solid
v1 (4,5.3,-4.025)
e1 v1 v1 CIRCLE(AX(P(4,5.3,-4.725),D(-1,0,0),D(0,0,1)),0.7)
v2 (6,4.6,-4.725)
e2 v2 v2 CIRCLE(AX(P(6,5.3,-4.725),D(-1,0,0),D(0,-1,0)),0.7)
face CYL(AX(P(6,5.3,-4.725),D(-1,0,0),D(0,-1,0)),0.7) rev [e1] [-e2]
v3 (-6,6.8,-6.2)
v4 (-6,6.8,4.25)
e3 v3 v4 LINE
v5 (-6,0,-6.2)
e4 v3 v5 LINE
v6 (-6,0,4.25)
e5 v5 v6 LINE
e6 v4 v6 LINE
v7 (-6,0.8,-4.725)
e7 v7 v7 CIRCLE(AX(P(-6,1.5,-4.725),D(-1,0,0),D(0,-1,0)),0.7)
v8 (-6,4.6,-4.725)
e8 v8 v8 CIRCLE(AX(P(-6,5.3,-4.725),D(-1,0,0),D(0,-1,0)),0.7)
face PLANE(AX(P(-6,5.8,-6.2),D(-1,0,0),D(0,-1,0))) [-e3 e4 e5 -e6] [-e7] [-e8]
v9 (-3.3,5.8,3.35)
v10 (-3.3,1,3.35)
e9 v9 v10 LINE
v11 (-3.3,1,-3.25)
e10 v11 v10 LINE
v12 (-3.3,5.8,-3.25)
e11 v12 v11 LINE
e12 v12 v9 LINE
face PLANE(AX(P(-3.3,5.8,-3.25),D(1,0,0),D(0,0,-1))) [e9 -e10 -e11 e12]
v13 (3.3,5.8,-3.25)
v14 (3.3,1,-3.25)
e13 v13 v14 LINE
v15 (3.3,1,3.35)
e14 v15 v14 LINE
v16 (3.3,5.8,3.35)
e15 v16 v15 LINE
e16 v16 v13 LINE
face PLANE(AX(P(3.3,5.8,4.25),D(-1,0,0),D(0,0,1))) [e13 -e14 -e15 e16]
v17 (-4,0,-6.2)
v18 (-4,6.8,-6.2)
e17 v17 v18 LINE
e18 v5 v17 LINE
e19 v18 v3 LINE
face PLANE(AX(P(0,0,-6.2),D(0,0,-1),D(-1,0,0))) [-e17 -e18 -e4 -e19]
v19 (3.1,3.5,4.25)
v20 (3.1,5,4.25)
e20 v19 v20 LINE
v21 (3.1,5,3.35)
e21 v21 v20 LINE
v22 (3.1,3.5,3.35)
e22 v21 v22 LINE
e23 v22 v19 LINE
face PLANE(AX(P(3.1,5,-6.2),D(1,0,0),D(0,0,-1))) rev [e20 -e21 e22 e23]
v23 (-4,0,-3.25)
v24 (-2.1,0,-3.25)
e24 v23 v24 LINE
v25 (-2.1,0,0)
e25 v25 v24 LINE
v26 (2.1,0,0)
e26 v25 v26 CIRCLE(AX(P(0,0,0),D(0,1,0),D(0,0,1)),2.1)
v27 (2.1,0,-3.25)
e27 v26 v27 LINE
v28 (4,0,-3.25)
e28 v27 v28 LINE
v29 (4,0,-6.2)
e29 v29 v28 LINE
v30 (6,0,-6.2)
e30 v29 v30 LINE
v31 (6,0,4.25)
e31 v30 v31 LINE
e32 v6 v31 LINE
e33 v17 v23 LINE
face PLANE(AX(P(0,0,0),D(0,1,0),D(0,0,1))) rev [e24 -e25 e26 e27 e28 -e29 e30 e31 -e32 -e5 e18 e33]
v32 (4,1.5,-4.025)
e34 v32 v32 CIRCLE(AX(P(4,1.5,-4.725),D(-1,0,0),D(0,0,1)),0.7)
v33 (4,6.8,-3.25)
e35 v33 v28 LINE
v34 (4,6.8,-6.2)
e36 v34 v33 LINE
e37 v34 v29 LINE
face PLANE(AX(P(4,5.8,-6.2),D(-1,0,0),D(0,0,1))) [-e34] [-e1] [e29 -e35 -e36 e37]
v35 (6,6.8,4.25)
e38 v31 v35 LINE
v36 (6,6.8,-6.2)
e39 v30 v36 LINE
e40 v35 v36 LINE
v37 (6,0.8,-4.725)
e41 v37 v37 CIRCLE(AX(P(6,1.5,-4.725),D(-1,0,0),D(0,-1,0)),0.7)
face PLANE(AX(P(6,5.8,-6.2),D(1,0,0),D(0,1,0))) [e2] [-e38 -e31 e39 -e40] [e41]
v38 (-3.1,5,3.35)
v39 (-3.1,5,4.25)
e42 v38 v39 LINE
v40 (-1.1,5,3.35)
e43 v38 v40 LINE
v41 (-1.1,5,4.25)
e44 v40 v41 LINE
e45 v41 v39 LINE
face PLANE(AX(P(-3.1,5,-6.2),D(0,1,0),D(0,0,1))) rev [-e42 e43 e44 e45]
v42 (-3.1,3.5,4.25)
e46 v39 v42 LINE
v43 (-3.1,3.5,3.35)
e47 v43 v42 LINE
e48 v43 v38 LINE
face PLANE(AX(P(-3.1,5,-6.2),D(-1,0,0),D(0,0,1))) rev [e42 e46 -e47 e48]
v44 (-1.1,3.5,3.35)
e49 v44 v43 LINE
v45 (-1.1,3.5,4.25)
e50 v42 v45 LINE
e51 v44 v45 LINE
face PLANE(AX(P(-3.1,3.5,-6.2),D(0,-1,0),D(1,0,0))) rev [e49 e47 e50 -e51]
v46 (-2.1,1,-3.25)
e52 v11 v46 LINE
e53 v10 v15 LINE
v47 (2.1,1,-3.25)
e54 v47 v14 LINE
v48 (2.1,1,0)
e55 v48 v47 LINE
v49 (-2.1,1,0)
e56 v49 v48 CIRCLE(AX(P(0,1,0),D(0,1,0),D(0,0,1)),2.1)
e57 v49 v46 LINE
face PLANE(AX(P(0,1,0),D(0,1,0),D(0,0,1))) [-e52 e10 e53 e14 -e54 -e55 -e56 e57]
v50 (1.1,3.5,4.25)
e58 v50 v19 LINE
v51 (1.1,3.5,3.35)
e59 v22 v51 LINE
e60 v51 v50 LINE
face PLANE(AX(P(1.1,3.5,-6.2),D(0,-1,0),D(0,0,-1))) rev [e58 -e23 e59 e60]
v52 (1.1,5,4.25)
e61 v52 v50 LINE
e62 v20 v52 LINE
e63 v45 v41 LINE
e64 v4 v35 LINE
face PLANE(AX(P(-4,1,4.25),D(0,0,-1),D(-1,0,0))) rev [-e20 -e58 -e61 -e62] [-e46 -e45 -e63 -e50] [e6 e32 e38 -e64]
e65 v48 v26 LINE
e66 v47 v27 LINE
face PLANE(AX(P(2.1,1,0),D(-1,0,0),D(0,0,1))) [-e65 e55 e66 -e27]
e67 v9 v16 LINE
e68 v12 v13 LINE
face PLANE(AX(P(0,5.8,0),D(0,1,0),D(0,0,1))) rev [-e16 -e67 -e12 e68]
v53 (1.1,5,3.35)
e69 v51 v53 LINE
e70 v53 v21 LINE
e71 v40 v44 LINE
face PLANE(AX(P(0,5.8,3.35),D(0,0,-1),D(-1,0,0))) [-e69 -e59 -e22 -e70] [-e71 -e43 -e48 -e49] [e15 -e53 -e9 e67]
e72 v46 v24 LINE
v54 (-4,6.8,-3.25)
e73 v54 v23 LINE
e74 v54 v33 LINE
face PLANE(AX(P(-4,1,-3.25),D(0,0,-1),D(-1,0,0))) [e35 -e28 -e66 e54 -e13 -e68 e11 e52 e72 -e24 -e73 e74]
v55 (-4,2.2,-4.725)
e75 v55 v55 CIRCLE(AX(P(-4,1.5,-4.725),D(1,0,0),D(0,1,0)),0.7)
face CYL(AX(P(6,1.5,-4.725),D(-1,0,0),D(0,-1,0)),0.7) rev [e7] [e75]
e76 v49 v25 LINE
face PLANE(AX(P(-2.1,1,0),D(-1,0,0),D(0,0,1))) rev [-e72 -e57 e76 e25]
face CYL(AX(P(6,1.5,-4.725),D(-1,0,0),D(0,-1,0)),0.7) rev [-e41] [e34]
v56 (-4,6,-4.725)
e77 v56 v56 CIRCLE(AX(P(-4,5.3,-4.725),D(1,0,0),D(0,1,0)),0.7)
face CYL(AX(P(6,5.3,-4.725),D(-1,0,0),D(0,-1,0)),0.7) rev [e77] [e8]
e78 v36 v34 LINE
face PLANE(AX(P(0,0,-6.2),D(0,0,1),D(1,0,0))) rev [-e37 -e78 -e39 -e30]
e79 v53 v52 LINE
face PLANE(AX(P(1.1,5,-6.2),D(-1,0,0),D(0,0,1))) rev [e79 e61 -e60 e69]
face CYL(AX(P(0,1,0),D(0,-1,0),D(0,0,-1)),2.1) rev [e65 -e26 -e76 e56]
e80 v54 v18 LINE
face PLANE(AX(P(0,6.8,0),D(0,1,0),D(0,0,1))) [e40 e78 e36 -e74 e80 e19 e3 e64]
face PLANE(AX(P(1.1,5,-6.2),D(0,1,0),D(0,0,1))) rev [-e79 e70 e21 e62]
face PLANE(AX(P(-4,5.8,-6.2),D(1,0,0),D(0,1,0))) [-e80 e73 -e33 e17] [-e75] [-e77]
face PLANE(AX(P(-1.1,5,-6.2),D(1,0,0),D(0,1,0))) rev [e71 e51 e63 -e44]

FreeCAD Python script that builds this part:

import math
import FreeCAD as App
import Part
import Sketcher
from FreeCAD import Vector
Q = App.Units.Quantity

doc = App.newDocument("Part")
body = doc.addObject("PartDesign::Body", "Body")

sketch1 = body.newObject("Sketcher::SketchObject", "Sketch")
sketch1.AttachmentSupport = (doc.getObject("XZ_Plane"), [""])
sketch1.MapMode = "FlatFace"
sketch1.addGeometry([
    Part.LineSegment(Vector(-4, -3.2, 0), Vector(-4, 4.2, 0)),
    Part.LineSegment(Vector(-4, 4.2, 0), Vector(4, 4.2, 0)),
    Part.LineSegment(Vector(4, 4.2, 0), Vector(4, -3.2, 0)),
    Part.LineSegment(Vector(4, -3.2, 0), Vector(2.1, -3.2, 0)),
    Part.LineSegment(Vector(2.1, -3.2, 0), Vector(2.1, 0, 0)),
    Part.ArcOfCircle(Part.Circle(Vector(0, 0, 0), Vector(0, 0, 1), 2.1), math.radians(0), math.radians(180)),
    Part.LineSegment(Vector(-2.1, 0, 0), Vector(-2.1, -3.2, 0)),
    Part.LineSegment(Vector(-2.1, -3.2, 0), Vector(-4, -3.2, 0)),
], False)
sketch1.addConstraint([
    Sketcher.Constraint("Coincident", 0, 2, 1, 1),
    Sketcher.Constraint("Coincident", 1, 2, 2, 1),
    Sketcher.Constraint("Coincident", 2, 2, 3, 1),
    Sketcher.Constraint("Coincident", 3, 2, 4, 1),
    Sketcher.Constraint("Tangent", 4, 2, 5, 1),
    Sketcher.Constraint("Tangent", 5, 2, 6, 1),
    Sketcher.Constraint("Coincident", 6, 2, 7, 1),
    Sketcher.Constraint("Coincident", 7, 2, 0, 1),
    Sketcher.Constraint("Vertical", 0),
    Sketcher.Constraint("Horizontal", 1),
    Sketcher.Constraint("Vertical", 2),
    Sketcher.Constraint("Horizontal", 3),
    Sketcher.Constraint("Vertical", 4),
    Sketcher.Constraint("Vertical", 6),
    Sketcher.Constraint("Horizontal", 7),
    Sketcher.Constraint("Coincident", 5, 3, -1, 1),
    Sketcher.Constraint("Symmetric", 2, 2, 7, 2, -2),
    Sketcher.Constraint("Radius", 5, Q("2.1 mm")),
    Sketcher.Constraint("DistanceX", 1, 1, 1, 2, Q("8 mm")),
    Sketcher.Constraint("DistanceY", 0, 1, 0, 2, Q("7.5 mm")),
    Sketcher.Constraint("DistanceY", 4, 1, 4, 2, Q("3.25 mm")),
])
pad1 = body.newObject("PartDesign::Pad", "Pad")
pad1.Profile = sketch1
pad1.Length = 1
pad1.Reversed = True

sketch2 = body.newObject("Sketcher::SketchObject", "Sketch001")
sketch2.AttachmentSupport = (doc.getObject("XZ_Plane"), [""])
sketch2.MapMode = "FlatFace"
sketch2.AttachmentOffset = App.Placement(Vector(0, 0, -1), App.Rotation())
sketch2.addGeometry([
    Part.LineSegment(Vector(-3.3, -3.2, 0), Vector(-4, -3.2, 0)),
    Part.LineSegment(Vector(-4, -3.2, 0), Vector(-4, 4.2, 0)),
    Part.LineSegment(Vector(-4, 4.2, 0), Vector(4, 4.2, 0)),
    Part.LineSegment(Vector(4, 4.2, 0), Vector(4, -3.2, 0)),
    Part.LineSegment(Vector(4, -3.2, 0), Vector(3.3, -3.2, 0)),
    Part.LineSegment(Vector(3.3, -3.2, 0), Vector(3.3, 3.4, 0)),
    Part.LineSegment(Vector(3.3, 3.4, 0), Vector(-3.3, 3.4, 0)),
    Part.LineSegment(Vector(-3.3, 3.4, 0), Vector(-3.3, -3.2, 0)),
], False)
sketch2.addConstraint([
    Sketcher.Constraint("Coincident", 0, 2, 1, 1),
    Sketcher.Constraint("Coincident", 1, 2, 2, 1),
    Sketcher.Constraint("Coincident", 2, 2, 3, 1),
    Sketcher.Constraint("Coincident", 3, 2, 4, 1),
    Sketcher.Constraint("Coincident", 4, 2, 5, 1),
    Sketcher.Constraint("Coincident", 5, 2, 6, 1),
    Sketcher.Constraint("Coincident", 6, 2, 7, 1),
    Sketcher.Constraint("Coincident", 7, 2, 0, 1),
    Sketcher.Constraint("Horizontal", 0),
    Sketcher.Constraint("Vertical", 1),
    Sketcher.Constraint("Horizontal", 2),
    Sketcher.Constraint("Vertical", 3),
    Sketcher.Constraint("Horizontal", 4),
    Sketcher.Constraint("Vertical", 5),
    Sketcher.Constraint("Horizontal", 6),
    Sketcher.Constraint("Vertical", 7),
    Sketcher.Constraint("Symmetric", 0, 2, 3, 2, -2),
    Sketcher.Constraint("Equal", 0, 4),
    Sketcher.Constraint("Equal", 6, 5),
    Sketcher.Constraint("DistanceX", 2, 1, 2, 2, Q("8 mm")),
    Sketcher.Constraint("DistanceX", 0, 2, 0, 1, Q("0.7 mm")),
    Sketcher.Constraint("DistanceY", 1, 1, 1, 2, Q("7.5 mm")),
    Sketcher.Constraint("DistanceY", 0, 2, -1, 1, Q("3.25 mm")),
])
pad2 = body.newObject("PartDesign::Pad", "Pad001")
pad2.Profile = sketch2
pad2.Length = 4.8
pad2.Reversed = True

sketch3 = body.newObject("Sketcher::SketchObject", "Sketch002")
sketch3.AttachmentSupport = (doc.getObject("XY_Plane"), [""])
sketch3.MapMode = "FlatFace"
sketch3.AttachmentOffset = App.Placement(Vector(0, 0, 4.25), App.Rotation())
sketch3.addGeometry([
    Part.LineSegment(Vector(4, 5.8, 0), Vector(4, 0, 0)),
    Part.LineSegment(Vector(4, 0, 0), Vector(6, 0, 0)),
    Part.LineSegment(Vector(6, 0, 0), Vector(6, 5.8, 0)),
    Part.LineSegment(Vector(6, 5.8, 0), Vector(4, 5.8, 0)),
    Part.LineSegment(Vector(-6, 5.8, 0), Vector(-6, 0, 0)),
    Part.LineSegment(Vector(-6, 0, 0), Vector(-4, 0, 0)),
    Part.LineSegment(Vector(-4, 0, 0), Vector(-4, 5.8, 0)),
    Part.LineSegment(Vector(-4, 5.8, 0), Vector(-6, 5.8, 0)),
], False)
sketch3.addConstraint([
    Sketcher.Constraint("Coincident", 0, 2, 1, 1),
    Sketcher.Constraint("Coincident", 1, 2, 2, 1),
    Sketcher.Constraint("Coincident", 2, 2, 3, 1),
    Sketcher.Constraint("Coincident", 3, 2, 0, 1),
    Sketcher.Constraint("Coincident", 4, 2, 5, 1),
    Sketcher.Constraint("Coincident", 5, 2, 6, 1),
    Sketcher.Constraint("Coincident", 6, 2, 7, 1),
    Sketcher.Constraint("Coincident", 7, 2, 4, 1),
    Sketcher.Constraint("Vertical", 0),
    Sketcher.Constraint("Horizontal", 1),
    Sketcher.Constraint("Vertical", 2),
    Sketcher.Constraint("Horizontal", 3),
    Sketcher.Constraint("Vertical", 4),
    Sketcher.Constraint("Horizontal", 5),
    Sketcher.Constraint("Vertical", 6),
    Sketcher.Constraint("Horizontal", 7),
    Sketcher.Constraint("Symmetric", 1, 2, 4, 2, -1, 1),
    Sketcher.Constraint("Symmetric", 0, 2, 5, 2, -2),
    Sketcher.Constraint("Horizontal", 3, 2, 6, 2),
    Sketcher.Constraint("DistanceX", 1, 1, 1, 2, Q("2 mm")),
    Sketcher.Constraint("DistanceY", 0, 2, 0, 1, Q("5.8 mm")),
    Sketcher.Constraint("DistanceX", -1, 1, 0, 2, Q("4 mm")),
])
pad3 = body.newObject("PartDesign::Pad", "Pad002")
pad3.Profile = sketch3
pad3.Length = 10.45
pad3.Reversed = True

sketch4 = body.newObject("Sketcher::SketchObject", "Sketch003")
sketch4.AttachmentSupport = (doc.getObject("XZ_Plane"), [""])
sketch4.MapMode = "FlatFace"
sketch4.AttachmentOffset = App.Placement(Vector(0, 0, -5.8), App.Rotation())
sketch4.addGeometry([
    Part.LineSegment(Vector(-6, 4.2, 0), Vector(6, 4.2, 0)),
    Part.LineSegment(Vector(6, 4.2, 0), Vector(6, -6.2, 0)),
    Part.LineSegment(Vector(6, -6.2, 0), Vector(4, -6.2, 0)),
    Part.LineSegment(Vector(4, -6.2, 0), Vector(4, -3.2, 0)),
    Part.LineSegment(Vector(4, -3.2, 0), Vector(-4, -3.2, 0)),
    Part.LineSegment(Vector(-4, -3.2, 0), Vector(-4, -6.2, 0)),
    Part.LineSegment(Vector(-4, -6.2, 0), Vector(-6, -6.2, 0)),
    Part.LineSegment(Vector(-6, -6.2, 0), Vector(-6, 4.2, 0)),
], False)
sketch4.addConstraint([
    Sketcher.Constraint("Coincident", 0, 2, 1, 1),
    Sketcher.Constraint("Coincident", 1, 2, 2, 1),
    Sketcher.Constraint("Coincident", 2, 2, 3, 1),
    Sketcher.Constraint("Coincident", 3, 2, 4, 1),
    Sketcher.Constraint("Coincident", 4, 2, 5, 1),
    Sketcher.Constraint("Coincident", 5, 2, 6, 1),
    Sketcher.Constraint("Coincident", 6, 2, 7, 1),
    Sketcher.Constraint("Coincident", 7, 2, 0, 1),
    Sketcher.Constraint("Horizontal", 0),
    Sketcher.Constraint("Vertical", 1),
    Sketcher.Constraint("Horizontal", 2),
    Sketcher.Constraint("Vertical", 3),
    Sketcher.Constraint("Horizontal", 4),
    Sketcher.Constraint("Vertical", 5),
    Sketcher.Constraint("Horizontal", 6),
    Sketcher.Constraint("Vertical", 7),
    Sketcher.Constraint("Symmetric", 2, 2, 5, 2, -2),
    Sketcher.Constraint("Equal", 2, 6),
    Sketcher.Constraint("DistanceX", 0, 1, 0, 2, Q("12 mm")),
    Sketcher.Constraint("DistanceX", 2, 2, 2, 1, Q("2 mm")),
    Sketcher.Constraint("DistanceY", 1, 2, 1, 1, Q("10.45 mm")),
    Sketcher.Constraint("DistanceY", 3, 1, 3, 2, Q("2.95 mm")),
    Sketcher.Constraint("DistanceY", 1, 2, -1, 1, Q("6.2 mm")),
])
pad4 = body.newObject("PartDesign::Pad", "Pad003")
pad4.Profile = sketch4
pad4.Length = 1
pad4.Reversed = True

sketch5 = body.newObject("Sketcher::SketchObject", "Sketch004")
sketch5.AttachmentSupport = (doc.getObject("XY_Plane"), [""])
sketch5.MapMode = "FlatFace"
sketch5.AttachmentOffset = App.Placement(Vector(0, 0, 4.25), App.Rotation())
sketch5.addGeometry([
    Part.LineSegment(Vector(-3.1, 5, 0), Vector(-3.1, 3.5, 0)),
    Part.LineSegment(Vector(-3.1, 3.5, 0), Vector(-1.1, 3.5, 0)),
    Part.LineSegment(Vector(-1.1, 3.5, 0), Vector(-1.1, 5, 0)),
    Part.LineSegment(Vector(-1.1, 5, 0), Vector(-3.1, 5, 0)),
    Part.LineSegment(Vector(1.1, 5, 0), Vector(1.1, 3.5, 0)),
    Part.LineSegment(Vector(1.1, 3.5, 0), Vector(3.1, 3.5, 0)),
    Part.LineSegment(Vector(3.1, 3.5, 0), Vector(3.1, 5, 0)),
    Part.LineSegment(Vector(3.1, 5, 0), Vector(1.1, 5, 0)),
], False)
sketch5.addConstraint([
    Sketcher.Constraint("Coincident", 0, 2, 1, 1),
    Sketcher.Constraint("Coincident", 1, 2, 2, 1),
    Sketcher.Constraint("Coincident", 2, 2, 3, 1),
    Sketcher.Constraint("Coincident", 3, 2, 0, 1),
    Sketcher.Constraint("Coincident", 4, 2, 5, 1),
    Sketcher.Constraint("Coincident", 5, 2, 6, 1),
    Sketcher.Constraint("Coincident", 6, 2, 7, 1),
    Sketcher.Constraint("Coincident", 7, 2, 4, 1),
    Sketcher.Constraint("Vertical", 0),
    Sketcher.Constraint("Horizontal", 1),
    Sketcher.Constraint("Vertical", 2),
    Sketcher.Constraint("Horizontal", 3),
    Sketcher.Constraint("Vertical", 4),
    Sketcher.Constraint("Horizontal", 5),
    Sketcher.Constraint("Vertical", 6),
    Sketcher.Constraint("Horizontal", 7),
    Sketcher.Constraint("Symmetric", 1, 2, 4, 2, -2),
    Sketcher.Constraint("Symmetric", 3, 2, 6, 2, -2),
    Sketcher.Constraint("DistanceX", 1, 1, 1, 2, Q("2 mm")),
    Sketcher.Constraint("DistanceY", 0, 2, 0, 1, Q("1.5 mm")),
    Sketcher.Constraint("DistanceY", -1, 1, 2, 2, Q("5 mm")),
    Sketcher.Constraint("DistanceX", 0, 2, -1, 1, Q("3.1 mm")),
])
pocket1 = body.newObject("PartDesign::Pocket", "Pocket")
pocket1.Profile = sketch5
pocket1.Type = "ThroughAll"

sketch6 = body.newObject("Sketcher::SketchObject", "Sketch005")
sketch6.AttachmentSupport = (doc.getObject("YZ_Plane"), [""])
sketch6.MapMode = "FlatFace"
sketch6.AttachmentOffset = App.Placement(Vector(0, 0, -6), App.Rotation())
sketch6.addGeometry([
    Part.Circle(Vector(5.3, -4.7, 0), Vector(0, 0, 1), 0.7),
    Part.Circle(Vector(1.5, -4.7, 0), Vector(0, 0, 1), 0.7),
], False)
sketch6.addConstraint([
    Sketcher.Constraint("Equal", 0, 1),
    Sketcher.Constraint("Horizontal", 0, 3, 1, 3),
    Sketcher.Constraint("Diameter", 0, Q("1.4 mm")),
    Sketcher.Constraint("DistanceX", -1, 1, 0, 3, Q("5.3 mm")),
    Sketcher.Constraint("DistanceX", -1, 1, 1, 3, Q("1.5 mm")),
    Sketcher.Constraint("DistanceY", 0, 3, -1, 1, Q("4.725 mm")),
])
pocket2 = body.newObject("PartDesign::Pocket", "Pocket001")
pocket2.Profile = sketch6
pocket2.Type = "ThroughAll"
pocket2.Reversed = True

doc.recompute()
